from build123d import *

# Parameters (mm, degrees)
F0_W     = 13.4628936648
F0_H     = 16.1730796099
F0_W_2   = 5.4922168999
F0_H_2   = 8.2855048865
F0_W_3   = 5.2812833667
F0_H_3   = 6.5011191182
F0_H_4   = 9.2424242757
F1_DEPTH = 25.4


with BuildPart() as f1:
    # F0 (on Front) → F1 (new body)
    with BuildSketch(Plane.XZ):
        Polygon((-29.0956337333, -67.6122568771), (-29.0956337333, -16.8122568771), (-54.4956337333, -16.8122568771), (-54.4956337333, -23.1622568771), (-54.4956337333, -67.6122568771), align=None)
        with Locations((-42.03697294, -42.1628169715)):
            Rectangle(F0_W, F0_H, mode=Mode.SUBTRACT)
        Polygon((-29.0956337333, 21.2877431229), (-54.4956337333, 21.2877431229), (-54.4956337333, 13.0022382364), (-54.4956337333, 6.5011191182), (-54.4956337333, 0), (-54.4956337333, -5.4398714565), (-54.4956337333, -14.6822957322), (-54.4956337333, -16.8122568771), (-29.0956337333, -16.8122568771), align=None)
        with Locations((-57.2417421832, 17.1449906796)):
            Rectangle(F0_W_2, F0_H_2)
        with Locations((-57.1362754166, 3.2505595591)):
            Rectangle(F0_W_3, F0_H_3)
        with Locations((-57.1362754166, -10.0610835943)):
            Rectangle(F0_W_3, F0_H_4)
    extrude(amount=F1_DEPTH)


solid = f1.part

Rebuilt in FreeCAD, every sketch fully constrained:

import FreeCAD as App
import Part
import Sketcher

V = App.Vector
Q = App.Units.Quantity


def add_polygon(sketch, points):
    """Adds a closed chain of lines whose ends are joined by coincident constraints."""
    first, n = sketch.GeometryCount, len(points)
    for a, b in zip(points, points[1:] + points[:1]):
        sketch.addGeometry(Part.LineSegment(App.Vector(*a, 0), App.Vector(*b, 0)), False)
    for i in range(n):
        sketch.addConstraint(Sketcher.Constraint("Coincident", first + i, 2, first + (i + 1) % n, 1))

doc = App.newDocument("Part")
body = doc.addObject("PartDesign::Body", "Body")

# Sketch on XZ plane
sketch1 = doc.addObject("Sketcher::SketchObject", "Sketch")
body.addObject(sketch1)
sketch1.AttachmentSupport = (doc.XZ_Plane, [""])
sketch1.MapMode = "FlatFace"
add_polygon(sketch1, [(-29, -68), (-29, 21), (-54, 21), (-60, 21), (-60, 13), (-54, 13), (-54, 7), (-60, 7), (-60, 0), (-54, 0), (-54, -5), (-60, -5), (-60, -15), (-54, -15), (-54, -68)])  # lines 0-14
add_polygon(sketch1, [(-35, -50), (-49, -50), (-49, -34), (-35, -34)])  # lines 15-18
sketch1.addConstraint(Sketcher.Constraint("Vertical", 0))
sketch1.addConstraint(Sketcher.Constraint("Horizontal", 1))
sketch1.addConstraint(Sketcher.Constraint("Horizontal", 2))
sketch1.addConstraint(Sketcher.Constraint("Vertical", 3))
sketch1.addConstraint(Sketcher.Constraint("Horizontal", 4))
sketch1.addConstraint(Sketcher.Constraint("Vertical", 5))
sketch1.addConstraint(Sketcher.Constraint("Horizontal", 6))
sketch1.addConstraint(Sketcher.Constraint("Vertical", 7))
sketch1.addConstraint(Sketcher.Constraint("Horizontal", 8))
sketch1.addConstraint(Sketcher.Constraint("Vertical", 9))
sketch1.addConstraint(Sketcher.Constraint("Horizontal", 10))
sketch1.addConstraint(Sketcher.Constraint("Vertical", 11))
sketch1.addConstraint(Sketcher.Constraint("Horizontal", 12))
sketch1.addConstraint(Sketcher.Constraint("Vertical", 13))
sketch1.addConstraint(Sketcher.Constraint("Horizontal", 14))
sketch1.addConstraint(Sketcher.Constraint("Horizontal", 15))
sketch1.addConstraint(Sketcher.Constraint("Vertical", 16))
sketch1.addConstraint(Sketcher.Constraint("Horizontal", 17))
sketch1.addConstraint(Sketcher.Constraint("Vertical", 18))
sketch1.addConstraint(Sketcher.Constraint("PointOnObject", 7, 2, -1))
sketch1.addConstraint(Sketcher.Constraint("Vertical", 1, 2, 4, 2))
sketch1.addConstraint(Sketcher.Constraint("Vertical", 5, 2, 8, 2))
sketch1.addConstraint(Sketcher.Constraint("Vertical", 7, 2, 10, 2))
sketch1.addConstraint(Sketcher.Constraint("Vertical", 9, 2, 12, 2))
sketch1.addConstraint(Sketcher.Constraint("Equal", 5, 7))
sketch1.addConstraint(Sketcher.Constraint("DistanceX", 1, 2, 1, 1, Q("1 in")))
sketch1.addConstraint(Sketcher.Constraint("DistanceY", 0, 1, 0, 2, Q("3.5 in")))
sketch1.addConstraint(Sketcher.Constraint("DistanceY", -1, 1, 0, 2, Q("0.8381001 in")))
sketch1.addConstraint(Sketcher.Constraint("DistanceY", 5, 2, 5, 1, Q("6.501119 mm")))
sketch1.addConstraint(Sketcher.Constraint("DistanceY", 9, 2, 9, 1, Q("5.439871 mm")))
sketch1.addConstraint(Sketcher.Constraint("DistanceY", 13, 2, 13, 1, Q("52.929961 mm")))
sketch1.addConstraint(Sketcher.Constraint("DistanceY", 16, 1, 16, 2, Q("16.17308 mm")))
sketch1.addConstraint(Sketcher.Constraint("DistanceY", 13, 2, 15, 2, Q("17.3629 mm")))
sketch1.addConstraint(Sketcher.Constraint("DistanceX", 2, 2, 2, 1, Q("5.492217 mm")))
sketch1.addConstraint(Sketcher.Constraint("DistanceX", 6, 2, 6, 1, Q("5.281283 mm")))
sketch1.addConstraint(Sketcher.Constraint("DistanceX", 15, 2, 15, 1, Q("13.462894 mm")))
sketch1.addConstraint(Sketcher.Constraint("DistanceX", 2, 2, -1, 1, Q("59.987851 mm")))
sketch1.addConstraint(Sketcher.Constraint("DistanceX", 15, 2, -1, 1, Q("48.76842 mm")))
pad1 = doc.addObject("PartDesign::Pad", "Pad")
body.addObject(pad1)
pad1.Profile = sketch1
pad1.Length = Q("1 in")

doc.recompute()
